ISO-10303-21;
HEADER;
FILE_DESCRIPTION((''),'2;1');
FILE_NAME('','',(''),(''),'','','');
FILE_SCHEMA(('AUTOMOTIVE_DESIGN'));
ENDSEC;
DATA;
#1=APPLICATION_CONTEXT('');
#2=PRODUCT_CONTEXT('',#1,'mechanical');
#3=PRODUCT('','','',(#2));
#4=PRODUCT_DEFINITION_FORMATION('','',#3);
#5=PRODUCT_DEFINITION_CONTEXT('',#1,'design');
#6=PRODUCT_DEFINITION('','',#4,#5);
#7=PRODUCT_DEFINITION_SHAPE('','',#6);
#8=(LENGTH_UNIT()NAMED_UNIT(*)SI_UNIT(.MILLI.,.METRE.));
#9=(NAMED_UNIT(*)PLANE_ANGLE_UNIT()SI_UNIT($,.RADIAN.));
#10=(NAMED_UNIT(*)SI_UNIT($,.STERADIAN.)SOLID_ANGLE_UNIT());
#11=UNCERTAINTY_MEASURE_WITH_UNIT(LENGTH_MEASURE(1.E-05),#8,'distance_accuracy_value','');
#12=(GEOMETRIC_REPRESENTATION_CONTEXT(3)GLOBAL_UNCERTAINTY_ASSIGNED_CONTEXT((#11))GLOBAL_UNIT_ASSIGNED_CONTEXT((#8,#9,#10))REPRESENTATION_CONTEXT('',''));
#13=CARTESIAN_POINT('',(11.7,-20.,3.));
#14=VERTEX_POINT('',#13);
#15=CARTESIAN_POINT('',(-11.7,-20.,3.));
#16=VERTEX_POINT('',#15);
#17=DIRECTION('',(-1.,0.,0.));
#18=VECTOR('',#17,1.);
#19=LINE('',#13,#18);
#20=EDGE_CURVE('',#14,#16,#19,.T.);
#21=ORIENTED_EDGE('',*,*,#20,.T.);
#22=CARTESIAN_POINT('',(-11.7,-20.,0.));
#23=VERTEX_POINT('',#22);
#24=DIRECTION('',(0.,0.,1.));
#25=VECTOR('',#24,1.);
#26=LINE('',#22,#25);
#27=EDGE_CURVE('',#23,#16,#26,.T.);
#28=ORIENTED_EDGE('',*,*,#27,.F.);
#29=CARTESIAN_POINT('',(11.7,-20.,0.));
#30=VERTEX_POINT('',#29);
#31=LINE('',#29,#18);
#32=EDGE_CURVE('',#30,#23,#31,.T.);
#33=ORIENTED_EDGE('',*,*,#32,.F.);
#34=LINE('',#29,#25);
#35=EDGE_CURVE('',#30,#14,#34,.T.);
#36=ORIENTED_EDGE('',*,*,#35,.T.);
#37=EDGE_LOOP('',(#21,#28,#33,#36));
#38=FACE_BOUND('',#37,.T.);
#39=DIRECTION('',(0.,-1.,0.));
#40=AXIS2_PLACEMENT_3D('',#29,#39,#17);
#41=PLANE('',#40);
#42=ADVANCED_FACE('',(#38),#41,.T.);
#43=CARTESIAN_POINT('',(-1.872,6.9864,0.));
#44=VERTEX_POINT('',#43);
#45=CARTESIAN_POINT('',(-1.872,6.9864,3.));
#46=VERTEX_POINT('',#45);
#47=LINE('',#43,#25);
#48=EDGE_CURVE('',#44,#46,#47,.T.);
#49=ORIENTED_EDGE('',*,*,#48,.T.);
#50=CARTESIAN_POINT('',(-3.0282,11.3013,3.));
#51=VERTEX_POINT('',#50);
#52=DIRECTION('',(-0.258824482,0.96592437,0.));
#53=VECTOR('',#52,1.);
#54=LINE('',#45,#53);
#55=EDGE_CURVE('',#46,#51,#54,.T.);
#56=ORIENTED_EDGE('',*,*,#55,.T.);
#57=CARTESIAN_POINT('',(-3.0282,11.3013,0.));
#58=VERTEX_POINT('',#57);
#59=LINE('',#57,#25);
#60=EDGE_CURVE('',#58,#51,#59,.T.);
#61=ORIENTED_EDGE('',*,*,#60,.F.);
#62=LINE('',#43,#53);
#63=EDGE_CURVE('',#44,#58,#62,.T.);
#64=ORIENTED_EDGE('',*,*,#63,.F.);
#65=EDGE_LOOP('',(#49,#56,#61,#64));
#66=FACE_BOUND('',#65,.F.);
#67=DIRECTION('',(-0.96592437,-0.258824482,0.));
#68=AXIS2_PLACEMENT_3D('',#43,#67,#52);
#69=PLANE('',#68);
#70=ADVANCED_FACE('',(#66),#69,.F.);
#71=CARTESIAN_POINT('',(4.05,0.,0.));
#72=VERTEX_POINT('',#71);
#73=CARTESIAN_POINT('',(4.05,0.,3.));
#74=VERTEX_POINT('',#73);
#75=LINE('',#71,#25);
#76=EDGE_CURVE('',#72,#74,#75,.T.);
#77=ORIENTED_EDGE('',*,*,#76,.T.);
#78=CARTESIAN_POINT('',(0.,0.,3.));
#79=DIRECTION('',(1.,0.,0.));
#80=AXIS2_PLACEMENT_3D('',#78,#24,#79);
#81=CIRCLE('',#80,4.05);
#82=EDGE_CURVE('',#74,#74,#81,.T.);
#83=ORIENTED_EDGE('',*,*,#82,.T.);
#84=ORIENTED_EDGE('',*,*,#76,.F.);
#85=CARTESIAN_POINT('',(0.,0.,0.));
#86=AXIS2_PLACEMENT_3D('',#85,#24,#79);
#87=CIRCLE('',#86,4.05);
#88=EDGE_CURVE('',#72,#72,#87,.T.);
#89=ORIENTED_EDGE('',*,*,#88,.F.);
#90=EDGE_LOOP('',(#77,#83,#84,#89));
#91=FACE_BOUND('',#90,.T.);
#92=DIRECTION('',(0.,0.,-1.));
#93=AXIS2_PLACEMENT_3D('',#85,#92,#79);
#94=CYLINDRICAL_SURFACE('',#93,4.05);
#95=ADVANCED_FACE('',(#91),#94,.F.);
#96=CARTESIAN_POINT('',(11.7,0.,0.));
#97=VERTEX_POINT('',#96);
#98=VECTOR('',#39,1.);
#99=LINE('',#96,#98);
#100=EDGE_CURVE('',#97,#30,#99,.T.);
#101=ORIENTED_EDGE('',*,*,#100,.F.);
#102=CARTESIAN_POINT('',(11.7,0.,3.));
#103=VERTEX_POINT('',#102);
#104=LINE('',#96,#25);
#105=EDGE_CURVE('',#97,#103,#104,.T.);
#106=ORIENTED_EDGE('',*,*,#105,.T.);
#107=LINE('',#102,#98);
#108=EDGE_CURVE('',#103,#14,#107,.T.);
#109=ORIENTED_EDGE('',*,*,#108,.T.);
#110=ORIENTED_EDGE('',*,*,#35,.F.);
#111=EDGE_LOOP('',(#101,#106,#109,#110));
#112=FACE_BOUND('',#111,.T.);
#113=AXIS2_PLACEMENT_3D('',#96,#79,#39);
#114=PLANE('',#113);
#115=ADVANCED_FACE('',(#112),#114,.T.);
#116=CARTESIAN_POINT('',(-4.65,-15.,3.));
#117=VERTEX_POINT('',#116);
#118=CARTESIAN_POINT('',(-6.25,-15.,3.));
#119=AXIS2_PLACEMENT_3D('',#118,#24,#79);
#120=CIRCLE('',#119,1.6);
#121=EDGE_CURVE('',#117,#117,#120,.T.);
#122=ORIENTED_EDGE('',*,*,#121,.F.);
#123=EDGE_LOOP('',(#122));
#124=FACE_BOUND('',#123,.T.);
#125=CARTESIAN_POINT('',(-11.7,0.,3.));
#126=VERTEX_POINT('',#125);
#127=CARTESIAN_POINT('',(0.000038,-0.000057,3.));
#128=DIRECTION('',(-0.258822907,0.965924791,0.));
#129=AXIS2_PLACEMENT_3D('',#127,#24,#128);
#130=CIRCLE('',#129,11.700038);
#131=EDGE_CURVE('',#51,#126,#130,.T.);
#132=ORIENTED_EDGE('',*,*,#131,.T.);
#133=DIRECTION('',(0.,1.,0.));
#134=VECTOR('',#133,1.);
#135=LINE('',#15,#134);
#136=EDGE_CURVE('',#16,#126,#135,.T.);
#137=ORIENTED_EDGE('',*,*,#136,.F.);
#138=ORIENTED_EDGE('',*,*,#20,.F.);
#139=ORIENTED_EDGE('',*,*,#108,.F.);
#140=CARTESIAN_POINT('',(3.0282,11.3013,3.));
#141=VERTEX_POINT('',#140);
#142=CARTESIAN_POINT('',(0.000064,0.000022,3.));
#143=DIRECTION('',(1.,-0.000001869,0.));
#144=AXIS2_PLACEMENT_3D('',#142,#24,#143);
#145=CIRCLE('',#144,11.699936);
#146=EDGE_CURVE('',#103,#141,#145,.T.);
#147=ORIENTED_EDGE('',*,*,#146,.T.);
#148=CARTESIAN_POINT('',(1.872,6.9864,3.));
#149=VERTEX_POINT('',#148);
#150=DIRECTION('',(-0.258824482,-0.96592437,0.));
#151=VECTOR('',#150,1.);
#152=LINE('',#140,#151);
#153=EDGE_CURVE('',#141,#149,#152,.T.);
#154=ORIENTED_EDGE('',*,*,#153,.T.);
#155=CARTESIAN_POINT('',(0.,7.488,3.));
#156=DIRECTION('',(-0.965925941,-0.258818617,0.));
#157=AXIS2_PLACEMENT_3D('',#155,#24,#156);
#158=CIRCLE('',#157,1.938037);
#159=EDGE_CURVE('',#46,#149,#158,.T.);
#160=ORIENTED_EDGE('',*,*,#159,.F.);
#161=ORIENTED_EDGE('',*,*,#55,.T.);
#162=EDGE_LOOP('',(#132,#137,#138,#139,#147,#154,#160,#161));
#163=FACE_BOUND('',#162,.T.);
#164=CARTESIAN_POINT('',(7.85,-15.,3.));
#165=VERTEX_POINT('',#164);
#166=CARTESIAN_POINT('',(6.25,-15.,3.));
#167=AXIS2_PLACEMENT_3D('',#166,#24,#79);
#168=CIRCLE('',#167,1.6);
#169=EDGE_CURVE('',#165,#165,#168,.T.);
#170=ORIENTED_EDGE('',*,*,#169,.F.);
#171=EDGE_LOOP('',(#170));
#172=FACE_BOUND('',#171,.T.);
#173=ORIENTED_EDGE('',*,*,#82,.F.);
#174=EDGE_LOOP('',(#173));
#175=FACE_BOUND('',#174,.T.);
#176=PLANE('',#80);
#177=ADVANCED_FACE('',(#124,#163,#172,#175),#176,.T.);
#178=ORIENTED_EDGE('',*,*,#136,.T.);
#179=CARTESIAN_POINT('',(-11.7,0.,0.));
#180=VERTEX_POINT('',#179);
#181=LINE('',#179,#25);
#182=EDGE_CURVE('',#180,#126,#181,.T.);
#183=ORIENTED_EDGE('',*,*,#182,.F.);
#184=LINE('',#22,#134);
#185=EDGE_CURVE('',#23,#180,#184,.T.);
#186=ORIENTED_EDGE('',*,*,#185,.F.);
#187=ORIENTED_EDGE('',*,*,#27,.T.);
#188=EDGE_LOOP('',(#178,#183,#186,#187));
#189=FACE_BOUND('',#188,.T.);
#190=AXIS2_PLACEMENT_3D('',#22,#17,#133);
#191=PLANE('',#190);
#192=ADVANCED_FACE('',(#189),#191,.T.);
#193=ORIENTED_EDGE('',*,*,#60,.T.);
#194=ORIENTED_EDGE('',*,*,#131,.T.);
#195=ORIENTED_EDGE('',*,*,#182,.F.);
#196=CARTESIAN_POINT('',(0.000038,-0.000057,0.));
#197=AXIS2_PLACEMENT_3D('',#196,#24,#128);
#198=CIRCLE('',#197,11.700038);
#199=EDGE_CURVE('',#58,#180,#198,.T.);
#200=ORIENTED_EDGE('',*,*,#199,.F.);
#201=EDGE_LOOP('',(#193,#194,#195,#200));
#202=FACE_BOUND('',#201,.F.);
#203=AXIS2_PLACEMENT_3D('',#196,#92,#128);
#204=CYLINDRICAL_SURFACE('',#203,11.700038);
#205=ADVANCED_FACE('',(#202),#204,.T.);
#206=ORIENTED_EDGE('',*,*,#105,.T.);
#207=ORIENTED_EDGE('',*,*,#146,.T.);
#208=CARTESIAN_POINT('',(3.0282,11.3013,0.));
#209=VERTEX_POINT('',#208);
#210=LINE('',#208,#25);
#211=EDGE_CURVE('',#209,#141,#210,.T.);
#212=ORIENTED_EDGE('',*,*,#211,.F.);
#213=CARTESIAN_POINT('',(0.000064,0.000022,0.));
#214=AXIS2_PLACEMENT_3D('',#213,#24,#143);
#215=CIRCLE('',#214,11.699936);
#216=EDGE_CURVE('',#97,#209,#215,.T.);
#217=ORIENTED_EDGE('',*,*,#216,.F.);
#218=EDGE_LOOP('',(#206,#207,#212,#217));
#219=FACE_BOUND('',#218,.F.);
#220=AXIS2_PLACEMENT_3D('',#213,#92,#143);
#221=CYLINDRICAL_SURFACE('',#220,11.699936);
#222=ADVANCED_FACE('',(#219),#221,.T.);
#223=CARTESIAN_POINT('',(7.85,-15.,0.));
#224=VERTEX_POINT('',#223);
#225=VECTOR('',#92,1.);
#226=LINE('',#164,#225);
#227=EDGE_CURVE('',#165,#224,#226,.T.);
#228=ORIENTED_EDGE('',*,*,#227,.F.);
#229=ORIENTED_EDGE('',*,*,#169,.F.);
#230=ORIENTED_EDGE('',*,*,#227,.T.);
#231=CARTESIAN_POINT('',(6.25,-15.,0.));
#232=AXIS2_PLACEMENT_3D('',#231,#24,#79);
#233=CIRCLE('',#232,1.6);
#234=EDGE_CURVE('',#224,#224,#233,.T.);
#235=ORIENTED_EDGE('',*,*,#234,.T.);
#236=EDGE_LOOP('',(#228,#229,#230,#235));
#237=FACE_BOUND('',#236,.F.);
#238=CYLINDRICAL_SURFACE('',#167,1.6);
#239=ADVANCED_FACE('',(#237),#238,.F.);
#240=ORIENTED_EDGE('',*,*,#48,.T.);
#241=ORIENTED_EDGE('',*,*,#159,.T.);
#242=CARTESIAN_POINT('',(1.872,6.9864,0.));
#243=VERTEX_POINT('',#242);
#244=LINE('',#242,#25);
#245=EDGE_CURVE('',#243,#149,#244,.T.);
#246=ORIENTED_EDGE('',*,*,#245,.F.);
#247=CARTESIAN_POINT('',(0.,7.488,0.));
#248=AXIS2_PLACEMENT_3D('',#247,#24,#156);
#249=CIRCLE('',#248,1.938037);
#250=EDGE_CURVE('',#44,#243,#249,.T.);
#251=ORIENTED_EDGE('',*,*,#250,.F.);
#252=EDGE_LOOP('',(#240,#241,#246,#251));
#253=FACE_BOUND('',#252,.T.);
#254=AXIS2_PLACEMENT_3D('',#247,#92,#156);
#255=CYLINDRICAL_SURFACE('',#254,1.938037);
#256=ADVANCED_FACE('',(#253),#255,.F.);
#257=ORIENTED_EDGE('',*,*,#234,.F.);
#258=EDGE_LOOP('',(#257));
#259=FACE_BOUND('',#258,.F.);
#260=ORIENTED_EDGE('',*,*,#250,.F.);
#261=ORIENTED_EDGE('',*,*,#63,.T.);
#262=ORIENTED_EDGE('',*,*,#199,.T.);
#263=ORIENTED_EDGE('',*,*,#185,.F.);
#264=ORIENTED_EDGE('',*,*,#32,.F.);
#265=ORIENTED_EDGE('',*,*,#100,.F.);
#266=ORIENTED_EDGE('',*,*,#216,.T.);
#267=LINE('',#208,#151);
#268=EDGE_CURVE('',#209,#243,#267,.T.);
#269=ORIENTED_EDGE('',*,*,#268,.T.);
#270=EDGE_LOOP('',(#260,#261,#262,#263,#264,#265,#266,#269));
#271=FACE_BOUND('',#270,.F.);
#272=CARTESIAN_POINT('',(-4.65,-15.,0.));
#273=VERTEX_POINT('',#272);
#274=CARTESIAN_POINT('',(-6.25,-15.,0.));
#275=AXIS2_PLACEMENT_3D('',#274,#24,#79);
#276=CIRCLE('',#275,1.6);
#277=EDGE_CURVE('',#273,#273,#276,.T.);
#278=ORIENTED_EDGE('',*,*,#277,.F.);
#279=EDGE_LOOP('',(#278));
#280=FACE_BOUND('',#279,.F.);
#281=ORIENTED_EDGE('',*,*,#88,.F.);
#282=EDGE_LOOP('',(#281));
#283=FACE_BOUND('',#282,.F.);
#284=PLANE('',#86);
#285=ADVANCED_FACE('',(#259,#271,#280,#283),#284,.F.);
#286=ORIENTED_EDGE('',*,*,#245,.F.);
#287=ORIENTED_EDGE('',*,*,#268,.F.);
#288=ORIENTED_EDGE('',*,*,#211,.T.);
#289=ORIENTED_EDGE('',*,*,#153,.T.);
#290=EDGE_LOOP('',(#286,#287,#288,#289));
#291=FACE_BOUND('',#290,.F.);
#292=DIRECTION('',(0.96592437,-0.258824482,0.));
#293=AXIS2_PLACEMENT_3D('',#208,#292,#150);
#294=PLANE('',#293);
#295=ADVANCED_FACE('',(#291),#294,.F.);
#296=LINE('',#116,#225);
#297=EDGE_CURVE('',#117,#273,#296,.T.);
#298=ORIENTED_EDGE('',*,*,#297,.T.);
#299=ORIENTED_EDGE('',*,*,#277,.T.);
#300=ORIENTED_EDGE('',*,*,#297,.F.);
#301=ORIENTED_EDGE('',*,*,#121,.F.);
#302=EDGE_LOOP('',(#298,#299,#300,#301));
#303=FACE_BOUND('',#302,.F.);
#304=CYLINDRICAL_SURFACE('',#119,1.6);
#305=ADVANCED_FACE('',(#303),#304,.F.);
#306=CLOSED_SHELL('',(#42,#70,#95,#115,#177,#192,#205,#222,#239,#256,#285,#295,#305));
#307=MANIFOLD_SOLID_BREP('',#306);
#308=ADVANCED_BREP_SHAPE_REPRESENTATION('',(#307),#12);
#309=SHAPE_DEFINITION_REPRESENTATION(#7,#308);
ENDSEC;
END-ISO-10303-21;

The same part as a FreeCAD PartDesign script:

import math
import FreeCAD as App
import Part
import Sketcher

V = App.Vector
Q = App.Units.Quantity

doc = App.newDocument("Part")
params = doc.addObject("Spreadsheet::Sheet", "Params")
for row, (alias, value) in enumerate([
    ("sketch1_diameter", "8.1 mm"),
    ("sketch1_radius", "11.7 mm"),
    ("sketch1_height", "20 mm"),
    ("pad1_length", "3 mm"),
    ("sketch2_diameter", "3.2 mm"),
], start=1):
    params.set(f"A{row}", alias)
    params.set(f"B{row}", "=" + value)
    params.setAlias(f"B{row}", alias)

body = doc.addObject("PartDesign::Body", "Body")

# Sketch on XY plane
sketch1 = body.newObject("Sketcher::SketchObject", "Sketch")
sketch1.AttachmentSupport = (doc.getObject("XY_Plane"), [""])
sketch1.MapMode = "FlatFace"
sketch1.addGeometry([
    Part.LineSegment(V(11.7, -20, 0), V(11.7, 0, 0)),  # 0
    Part.ArcOfCircle(Part.Circle(V(0, 0, 0), V(0, 0, 1), 11.7), math.radians(0), math.radians(75)),  # 1
    Part.LineSegment(V(3, 11.3, 0), V(1.9, 7, 0)),  # 2
    Part.ArcOfCircle(Part.Circle(V(0, 7.5, 0), V(0, 0, 1), 1.9), math.radians(-165), math.radians(-15)),  # 3
    Part.LineSegment(V(-1.9, 7, 0), V(-3, 11.3, 0)),  # 4
    Part.ArcOfCircle(Part.Circle(V(0, 0, 0), V(0, 0, 1), 11.7), math.radians(105), math.radians(180)),  # 5
    Part.LineSegment(V(-11.7, 0, 0), V(-11.7, -20, 0)),  # 6
    Part.LineSegment(V(-11.7, -20, 0), V(11.7, -20, 0)),  # 7
    Part.Circle(V(0, 0, 0), V(0, 0, 1), 4),  # 8
], False)
sketch1.addConstraint([
    Sketcher.Constraint("Tangent", 0, 2, 1, 1),
    Sketcher.Constraint("Coincident", 1, 2, 2, 1),
    Sketcher.Constraint("Tangent", 2, 2, 3, 2),
    Sketcher.Constraint("Tangent", 3, 1, 4, 1),
    Sketcher.Constraint("Coincident", 4, 2, 5, 1),
    Sketcher.Constraint("Tangent", 5, 2, 6, 1),
    Sketcher.Constraint("Coincident", 6, 2, 7, 1),
    Sketcher.Constraint("Coincident", 7, 2, 0, 1),
    Sketcher.Constraint("Vertical", 0),
    Sketcher.Constraint("Vertical", 6),
    Sketcher.Constraint("Horizontal", 7),
    Sketcher.Constraint("Coincident", 1, 3, -1, 1),
    Sketcher.Constraint("Coincident", 5, 3, -1, 1),
    Sketcher.Constraint("Coincident", 8, 3, -1, 1),
    Sketcher.Constraint("Equal", 1, 5),
    Sketcher.Constraint("Symmetric", 2, 2, 3, 1, -2),
    Sketcher.Constraint("Diameter", 8, Q("8.1 mm")),
    Sketcher.Constraint("Radius", 1, Q("11.7 mm")),
    Sketcher.Constraint("DistanceY", 0, 1, 0, 2, Q("20 mm")),
    Sketcher.Constraint("Angle", 2, Q("-105.0003 deg")),
    Sketcher.Constraint("Radius", 3, Q("1.938 mm")),
    Sketcher.Constraint("Distance", 2, Q("4.467 mm")),
])
sketch1.setExpression("Constraints[16]", "Params.sketch1_diameter")
sketch1.setExpression("Constraints[17]", "Params.sketch1_radius")
sketch1.setExpression("Constraints[18]", "Params.sketch1_height")
pad1 = body.newObject("PartDesign::Pad", "Pad")
pad1.Profile = sketch1
pad1.setExpression("Length", "Params.pad1_length")

# Sketch on XY plane
sketch2 = body.newObject("Sketcher::SketchObject", "Sketch001")
sketch2.AttachmentSupport = (doc.getObject("XY_Plane"), [""])
sketch2.MapMode = "FlatFace"
sketch2.AttachmentOffset = App.Placement(V(0, 0, 3), App.Rotation())
sketch2.addGeometry([
    Part.Circle(V(-6.2, -15, 0), V(0, 0, 1), 1.6),
    Part.Circle(V(6.2, -15, 0), V(0, 0, 1), 1.6),
], False)
sketch2.addConstraint([
    Sketcher.Constraint("Equal", 0, 1),
    Sketcher.Constraint("Symmetric", 0, 3, 1, 3, -2),
    Sketcher.Constraint("Diameter", 0, Q("3.2 mm")),
    Sketcher.Constraint("DistanceX", 0, 3, 1, 3, Q("12.5 mm")),
    Sketcher.Constraint("DistanceY", 0, 3, -1, 1, Q("15 mm")),
])
sketch2.setExpression("Constraints[2]", "Params.sketch2_diameter")
pocket1 = body.newObject("PartDesign::Pocket", "Pocket")
pocket1.Profile = sketch2
pocket1.Type = "ThroughAll"

doc.recompute()
